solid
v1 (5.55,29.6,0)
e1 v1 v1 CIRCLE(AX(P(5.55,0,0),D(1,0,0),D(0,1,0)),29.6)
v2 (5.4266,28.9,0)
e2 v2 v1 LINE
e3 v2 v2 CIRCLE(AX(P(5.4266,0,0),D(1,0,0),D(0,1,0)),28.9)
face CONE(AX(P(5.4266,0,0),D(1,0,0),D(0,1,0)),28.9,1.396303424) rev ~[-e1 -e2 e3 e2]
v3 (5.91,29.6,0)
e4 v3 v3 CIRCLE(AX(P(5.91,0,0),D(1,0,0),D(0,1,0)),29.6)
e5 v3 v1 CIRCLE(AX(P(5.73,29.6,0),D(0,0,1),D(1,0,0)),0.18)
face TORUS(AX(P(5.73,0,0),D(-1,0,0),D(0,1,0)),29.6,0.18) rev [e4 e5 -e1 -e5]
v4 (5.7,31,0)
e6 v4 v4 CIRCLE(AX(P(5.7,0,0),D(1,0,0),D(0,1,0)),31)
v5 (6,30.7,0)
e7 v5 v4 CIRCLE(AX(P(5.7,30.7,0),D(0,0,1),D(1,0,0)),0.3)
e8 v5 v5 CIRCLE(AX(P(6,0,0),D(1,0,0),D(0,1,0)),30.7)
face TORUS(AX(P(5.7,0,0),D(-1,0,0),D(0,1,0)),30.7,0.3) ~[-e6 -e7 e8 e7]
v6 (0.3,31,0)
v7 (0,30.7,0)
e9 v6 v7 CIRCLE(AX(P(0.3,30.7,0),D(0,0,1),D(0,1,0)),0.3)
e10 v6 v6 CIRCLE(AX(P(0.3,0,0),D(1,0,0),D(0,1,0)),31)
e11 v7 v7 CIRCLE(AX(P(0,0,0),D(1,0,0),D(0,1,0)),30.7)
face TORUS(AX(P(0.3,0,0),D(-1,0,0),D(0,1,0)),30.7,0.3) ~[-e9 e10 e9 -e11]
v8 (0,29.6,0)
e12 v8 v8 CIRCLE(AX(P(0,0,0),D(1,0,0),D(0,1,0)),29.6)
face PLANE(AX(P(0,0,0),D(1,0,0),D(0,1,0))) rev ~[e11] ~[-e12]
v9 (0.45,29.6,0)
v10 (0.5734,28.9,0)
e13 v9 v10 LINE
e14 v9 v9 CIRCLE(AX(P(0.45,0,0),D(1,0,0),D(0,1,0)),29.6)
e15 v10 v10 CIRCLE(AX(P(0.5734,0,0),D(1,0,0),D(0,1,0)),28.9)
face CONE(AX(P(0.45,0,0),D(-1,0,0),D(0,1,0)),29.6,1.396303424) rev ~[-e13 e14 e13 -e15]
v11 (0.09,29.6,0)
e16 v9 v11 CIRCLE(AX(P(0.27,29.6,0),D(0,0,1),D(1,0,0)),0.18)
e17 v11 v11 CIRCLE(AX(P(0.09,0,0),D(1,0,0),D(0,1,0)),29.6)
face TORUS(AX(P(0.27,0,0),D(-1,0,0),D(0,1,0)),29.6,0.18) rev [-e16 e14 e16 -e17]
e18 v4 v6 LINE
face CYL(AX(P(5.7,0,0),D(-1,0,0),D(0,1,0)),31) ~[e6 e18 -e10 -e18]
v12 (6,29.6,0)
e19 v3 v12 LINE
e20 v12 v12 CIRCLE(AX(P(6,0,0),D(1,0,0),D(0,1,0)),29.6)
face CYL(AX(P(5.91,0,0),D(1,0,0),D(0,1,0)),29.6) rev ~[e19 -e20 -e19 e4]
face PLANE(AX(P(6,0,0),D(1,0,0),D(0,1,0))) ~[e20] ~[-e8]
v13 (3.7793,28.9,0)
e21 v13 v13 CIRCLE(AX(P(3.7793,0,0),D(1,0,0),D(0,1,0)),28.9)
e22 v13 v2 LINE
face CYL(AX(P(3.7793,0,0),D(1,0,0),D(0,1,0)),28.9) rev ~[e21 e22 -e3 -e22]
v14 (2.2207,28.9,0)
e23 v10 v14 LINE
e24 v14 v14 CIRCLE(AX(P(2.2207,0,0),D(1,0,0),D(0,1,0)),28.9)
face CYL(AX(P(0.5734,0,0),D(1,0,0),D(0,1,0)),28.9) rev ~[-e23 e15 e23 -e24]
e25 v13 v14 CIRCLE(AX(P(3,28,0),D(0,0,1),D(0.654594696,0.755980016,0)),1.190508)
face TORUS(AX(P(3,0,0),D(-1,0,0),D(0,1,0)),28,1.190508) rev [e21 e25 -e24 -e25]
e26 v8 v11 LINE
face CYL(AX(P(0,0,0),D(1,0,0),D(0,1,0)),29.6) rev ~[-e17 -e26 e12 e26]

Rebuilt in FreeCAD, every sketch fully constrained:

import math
import FreeCAD as App
import Part
import Sketcher
from FreeCAD import Vector

doc = App.newDocument("Part")
body = doc.addObject("PartDesign::Body", "Body")

# Sketch on XY plane
sketch1 = doc.addObject("Sketcher::SketchObject", "Sketch")
body.addObject(sketch1)
sketch1.AttachmentSupport = (doc.XY_Plane, [""])
sketch1.MapMode = "FlatFace"
sketch1.addGeometry([
    Part.LineSegment(Vector(0, 30.7, 0), Vector(0, 29.6, 0)),  # 0
    Part.LineSegment(Vector(0, 29.6, 0), Vector(0.09, 29.6, 0)),  # 1
    Part.ArcOfCircle(Part.Circle(Vector(0.27, 29.6, 0), Vector(0, 0, 1), 0.18), math.radians(0), math.radians(180)),  # 2
    Part.LineSegment(Vector(0.45, 29.6, 0), Vector(0.5734, 28.9, 0)),  # 3
    Part.LineSegment(Vector(0.5734, 28.9, 0), Vector(2.2207, 28.9, 0)),  # 4
    Part.ArcOfCircle(Part.Circle(Vector(3, 28, 0), Vector(0, 0, 1), 1.190508), math.radians(49.111075), math.radians(130.888925)),  # 5
    Part.LineSegment(Vector(3.7793, 28.9, 0), Vector(5.4266, 28.9, 0)),  # 6
    Part.LineSegment(Vector(5.4266, 28.9, 0), Vector(5.55, 29.6, 0)),  # 7
    Part.ArcOfCircle(Part.Circle(Vector(5.73, 29.6, 0), Vector(0, 0, 1), 0.18), math.radians(0), math.radians(180)),  # 8
    Part.LineSegment(Vector(5.91, 29.6, 0), Vector(6, 29.6, 0)),  # 9
    Part.LineSegment(Vector(6, 29.6, 0), Vector(6, 30.7, 0)),  # 10
    Part.ArcOfCircle(Part.Circle(Vector(5.7, 30.7, 0), Vector(0, 0, 1), 0.3), math.radians(0), math.radians(90)),  # 11
    Part.LineSegment(Vector(5.7, 31, 0), Vector(0.3, 31, 0)),  # 12
    Part.ArcOfCircle(Part.Circle(Vector(0.3, 30.7, 0), Vector(0, 0, 1), 0.3), math.radians(90), math.radians(180)),  # 13
], False)
sketch1.addConstraint([
    Sketcher.Constraint("Coincident", 0, 2, 1, 1),
    Sketcher.Constraint("Coincident", 1, 2, 2, 2),
    Sketcher.Constraint("Coincident", 2, 1, 3, 1),
    Sketcher.Constraint("Coincident", 3, 2, 4, 1),
    Sketcher.Constraint("Coincident", 4, 2, 5, 2),
    Sketcher.Constraint("Coincident", 5, 1, 6, 1),
    Sketcher.Constraint("Coincident", 6, 2, 7, 1),
    Sketcher.Constraint("Coincident", 7, 2, 8, 2),
    Sketcher.Constraint("Coincident", 8, 1, 9, 1),
    Sketcher.Constraint("Coincident", 9, 2, 10, 1),
    Sketcher.Constraint("Tangent", 10, 2, 11, 1),
    Sketcher.Constraint("Tangent", 11, 2, 12, 1),
    Sketcher.Constraint("Tangent", 12, 2, 13, 1),
    Sketcher.Constraint("Tangent", 13, 2, 0, 1),
    Sketcher.Constraint("Vertical", 0),
    Sketcher.Constraint("Horizontal", 1),
    Sketcher.Constraint("Horizontal", 4),
    Sketcher.Constraint("Horizontal", 6),
    Sketcher.Constraint("Horizontal", 9),
    Sketcher.Constraint("Vertical", 10),
    Sketcher.Constraint("Horizontal", 12),
    Sketcher.Constraint("Equal", 2, 8),
    Sketcher.Constraint("Equal", 11, 13),
    Sketcher.Constraint("PointOnObject", 0, 2, -2),
    Sketcher.Constraint("Horizontal", 2, 3, 8, 3),
    Sketcher.Constraint("Horizontal", 8, 3, 0, 2),
    Sketcher.Constraint("Horizontal", 1, 2, 2, 1),
    Sketcher.Constraint("Horizontal", 4, 2, 5, 1),
    Sketcher.Constraint("Horizontal", 2, 1, 7, 2),
    Sketcher.Constraint("Horizontal", 7, 2, 8, 1),
    Sketcher.Constraint("Equal", 4, 6),
    Sketcher.Constraint("Equal", 1, 9),
    Sketcher.Constraint("Equal", 3, 7),
    Sketcher.Constraint("Radius", 11, 0.3),
    Sketcher.Constraint("Radius", 2, 0.18),
    Sketcher.Constraint("DistanceX", 12, 2, 12, 1, 5.4),
    Sketcher.Constraint("DistanceY", 0, 2, 0, 1, 1.1),
    Sketcher.Constraint("DistanceY", -1, 1, 5, 3, 28.0),
    Sketcher.Constraint("DistanceY", -1, 1, 11, 2, 31.0),
    Sketcher.Constraint("DistanceX", 1, 1, 1, 2, 0.09),
    Sketcher.Constraint("DistanceY", -1, 1, 3, 2, 28.9),
    Sketcher.Constraint("Radius", 5, 1.1905),
    Sketcher.Constraint("DistanceX", 4, 1, 4, 2, 1.6473),
])
revolution = doc.addObject("PartDesign::Revolution", "Revolution")
body.addObject(revolution)
revolution.Profile = sketch1
revolution.ReferenceAxis = (sketch1, ["H_Axis"])
revolution.Angle = 360

doc.recompute()
